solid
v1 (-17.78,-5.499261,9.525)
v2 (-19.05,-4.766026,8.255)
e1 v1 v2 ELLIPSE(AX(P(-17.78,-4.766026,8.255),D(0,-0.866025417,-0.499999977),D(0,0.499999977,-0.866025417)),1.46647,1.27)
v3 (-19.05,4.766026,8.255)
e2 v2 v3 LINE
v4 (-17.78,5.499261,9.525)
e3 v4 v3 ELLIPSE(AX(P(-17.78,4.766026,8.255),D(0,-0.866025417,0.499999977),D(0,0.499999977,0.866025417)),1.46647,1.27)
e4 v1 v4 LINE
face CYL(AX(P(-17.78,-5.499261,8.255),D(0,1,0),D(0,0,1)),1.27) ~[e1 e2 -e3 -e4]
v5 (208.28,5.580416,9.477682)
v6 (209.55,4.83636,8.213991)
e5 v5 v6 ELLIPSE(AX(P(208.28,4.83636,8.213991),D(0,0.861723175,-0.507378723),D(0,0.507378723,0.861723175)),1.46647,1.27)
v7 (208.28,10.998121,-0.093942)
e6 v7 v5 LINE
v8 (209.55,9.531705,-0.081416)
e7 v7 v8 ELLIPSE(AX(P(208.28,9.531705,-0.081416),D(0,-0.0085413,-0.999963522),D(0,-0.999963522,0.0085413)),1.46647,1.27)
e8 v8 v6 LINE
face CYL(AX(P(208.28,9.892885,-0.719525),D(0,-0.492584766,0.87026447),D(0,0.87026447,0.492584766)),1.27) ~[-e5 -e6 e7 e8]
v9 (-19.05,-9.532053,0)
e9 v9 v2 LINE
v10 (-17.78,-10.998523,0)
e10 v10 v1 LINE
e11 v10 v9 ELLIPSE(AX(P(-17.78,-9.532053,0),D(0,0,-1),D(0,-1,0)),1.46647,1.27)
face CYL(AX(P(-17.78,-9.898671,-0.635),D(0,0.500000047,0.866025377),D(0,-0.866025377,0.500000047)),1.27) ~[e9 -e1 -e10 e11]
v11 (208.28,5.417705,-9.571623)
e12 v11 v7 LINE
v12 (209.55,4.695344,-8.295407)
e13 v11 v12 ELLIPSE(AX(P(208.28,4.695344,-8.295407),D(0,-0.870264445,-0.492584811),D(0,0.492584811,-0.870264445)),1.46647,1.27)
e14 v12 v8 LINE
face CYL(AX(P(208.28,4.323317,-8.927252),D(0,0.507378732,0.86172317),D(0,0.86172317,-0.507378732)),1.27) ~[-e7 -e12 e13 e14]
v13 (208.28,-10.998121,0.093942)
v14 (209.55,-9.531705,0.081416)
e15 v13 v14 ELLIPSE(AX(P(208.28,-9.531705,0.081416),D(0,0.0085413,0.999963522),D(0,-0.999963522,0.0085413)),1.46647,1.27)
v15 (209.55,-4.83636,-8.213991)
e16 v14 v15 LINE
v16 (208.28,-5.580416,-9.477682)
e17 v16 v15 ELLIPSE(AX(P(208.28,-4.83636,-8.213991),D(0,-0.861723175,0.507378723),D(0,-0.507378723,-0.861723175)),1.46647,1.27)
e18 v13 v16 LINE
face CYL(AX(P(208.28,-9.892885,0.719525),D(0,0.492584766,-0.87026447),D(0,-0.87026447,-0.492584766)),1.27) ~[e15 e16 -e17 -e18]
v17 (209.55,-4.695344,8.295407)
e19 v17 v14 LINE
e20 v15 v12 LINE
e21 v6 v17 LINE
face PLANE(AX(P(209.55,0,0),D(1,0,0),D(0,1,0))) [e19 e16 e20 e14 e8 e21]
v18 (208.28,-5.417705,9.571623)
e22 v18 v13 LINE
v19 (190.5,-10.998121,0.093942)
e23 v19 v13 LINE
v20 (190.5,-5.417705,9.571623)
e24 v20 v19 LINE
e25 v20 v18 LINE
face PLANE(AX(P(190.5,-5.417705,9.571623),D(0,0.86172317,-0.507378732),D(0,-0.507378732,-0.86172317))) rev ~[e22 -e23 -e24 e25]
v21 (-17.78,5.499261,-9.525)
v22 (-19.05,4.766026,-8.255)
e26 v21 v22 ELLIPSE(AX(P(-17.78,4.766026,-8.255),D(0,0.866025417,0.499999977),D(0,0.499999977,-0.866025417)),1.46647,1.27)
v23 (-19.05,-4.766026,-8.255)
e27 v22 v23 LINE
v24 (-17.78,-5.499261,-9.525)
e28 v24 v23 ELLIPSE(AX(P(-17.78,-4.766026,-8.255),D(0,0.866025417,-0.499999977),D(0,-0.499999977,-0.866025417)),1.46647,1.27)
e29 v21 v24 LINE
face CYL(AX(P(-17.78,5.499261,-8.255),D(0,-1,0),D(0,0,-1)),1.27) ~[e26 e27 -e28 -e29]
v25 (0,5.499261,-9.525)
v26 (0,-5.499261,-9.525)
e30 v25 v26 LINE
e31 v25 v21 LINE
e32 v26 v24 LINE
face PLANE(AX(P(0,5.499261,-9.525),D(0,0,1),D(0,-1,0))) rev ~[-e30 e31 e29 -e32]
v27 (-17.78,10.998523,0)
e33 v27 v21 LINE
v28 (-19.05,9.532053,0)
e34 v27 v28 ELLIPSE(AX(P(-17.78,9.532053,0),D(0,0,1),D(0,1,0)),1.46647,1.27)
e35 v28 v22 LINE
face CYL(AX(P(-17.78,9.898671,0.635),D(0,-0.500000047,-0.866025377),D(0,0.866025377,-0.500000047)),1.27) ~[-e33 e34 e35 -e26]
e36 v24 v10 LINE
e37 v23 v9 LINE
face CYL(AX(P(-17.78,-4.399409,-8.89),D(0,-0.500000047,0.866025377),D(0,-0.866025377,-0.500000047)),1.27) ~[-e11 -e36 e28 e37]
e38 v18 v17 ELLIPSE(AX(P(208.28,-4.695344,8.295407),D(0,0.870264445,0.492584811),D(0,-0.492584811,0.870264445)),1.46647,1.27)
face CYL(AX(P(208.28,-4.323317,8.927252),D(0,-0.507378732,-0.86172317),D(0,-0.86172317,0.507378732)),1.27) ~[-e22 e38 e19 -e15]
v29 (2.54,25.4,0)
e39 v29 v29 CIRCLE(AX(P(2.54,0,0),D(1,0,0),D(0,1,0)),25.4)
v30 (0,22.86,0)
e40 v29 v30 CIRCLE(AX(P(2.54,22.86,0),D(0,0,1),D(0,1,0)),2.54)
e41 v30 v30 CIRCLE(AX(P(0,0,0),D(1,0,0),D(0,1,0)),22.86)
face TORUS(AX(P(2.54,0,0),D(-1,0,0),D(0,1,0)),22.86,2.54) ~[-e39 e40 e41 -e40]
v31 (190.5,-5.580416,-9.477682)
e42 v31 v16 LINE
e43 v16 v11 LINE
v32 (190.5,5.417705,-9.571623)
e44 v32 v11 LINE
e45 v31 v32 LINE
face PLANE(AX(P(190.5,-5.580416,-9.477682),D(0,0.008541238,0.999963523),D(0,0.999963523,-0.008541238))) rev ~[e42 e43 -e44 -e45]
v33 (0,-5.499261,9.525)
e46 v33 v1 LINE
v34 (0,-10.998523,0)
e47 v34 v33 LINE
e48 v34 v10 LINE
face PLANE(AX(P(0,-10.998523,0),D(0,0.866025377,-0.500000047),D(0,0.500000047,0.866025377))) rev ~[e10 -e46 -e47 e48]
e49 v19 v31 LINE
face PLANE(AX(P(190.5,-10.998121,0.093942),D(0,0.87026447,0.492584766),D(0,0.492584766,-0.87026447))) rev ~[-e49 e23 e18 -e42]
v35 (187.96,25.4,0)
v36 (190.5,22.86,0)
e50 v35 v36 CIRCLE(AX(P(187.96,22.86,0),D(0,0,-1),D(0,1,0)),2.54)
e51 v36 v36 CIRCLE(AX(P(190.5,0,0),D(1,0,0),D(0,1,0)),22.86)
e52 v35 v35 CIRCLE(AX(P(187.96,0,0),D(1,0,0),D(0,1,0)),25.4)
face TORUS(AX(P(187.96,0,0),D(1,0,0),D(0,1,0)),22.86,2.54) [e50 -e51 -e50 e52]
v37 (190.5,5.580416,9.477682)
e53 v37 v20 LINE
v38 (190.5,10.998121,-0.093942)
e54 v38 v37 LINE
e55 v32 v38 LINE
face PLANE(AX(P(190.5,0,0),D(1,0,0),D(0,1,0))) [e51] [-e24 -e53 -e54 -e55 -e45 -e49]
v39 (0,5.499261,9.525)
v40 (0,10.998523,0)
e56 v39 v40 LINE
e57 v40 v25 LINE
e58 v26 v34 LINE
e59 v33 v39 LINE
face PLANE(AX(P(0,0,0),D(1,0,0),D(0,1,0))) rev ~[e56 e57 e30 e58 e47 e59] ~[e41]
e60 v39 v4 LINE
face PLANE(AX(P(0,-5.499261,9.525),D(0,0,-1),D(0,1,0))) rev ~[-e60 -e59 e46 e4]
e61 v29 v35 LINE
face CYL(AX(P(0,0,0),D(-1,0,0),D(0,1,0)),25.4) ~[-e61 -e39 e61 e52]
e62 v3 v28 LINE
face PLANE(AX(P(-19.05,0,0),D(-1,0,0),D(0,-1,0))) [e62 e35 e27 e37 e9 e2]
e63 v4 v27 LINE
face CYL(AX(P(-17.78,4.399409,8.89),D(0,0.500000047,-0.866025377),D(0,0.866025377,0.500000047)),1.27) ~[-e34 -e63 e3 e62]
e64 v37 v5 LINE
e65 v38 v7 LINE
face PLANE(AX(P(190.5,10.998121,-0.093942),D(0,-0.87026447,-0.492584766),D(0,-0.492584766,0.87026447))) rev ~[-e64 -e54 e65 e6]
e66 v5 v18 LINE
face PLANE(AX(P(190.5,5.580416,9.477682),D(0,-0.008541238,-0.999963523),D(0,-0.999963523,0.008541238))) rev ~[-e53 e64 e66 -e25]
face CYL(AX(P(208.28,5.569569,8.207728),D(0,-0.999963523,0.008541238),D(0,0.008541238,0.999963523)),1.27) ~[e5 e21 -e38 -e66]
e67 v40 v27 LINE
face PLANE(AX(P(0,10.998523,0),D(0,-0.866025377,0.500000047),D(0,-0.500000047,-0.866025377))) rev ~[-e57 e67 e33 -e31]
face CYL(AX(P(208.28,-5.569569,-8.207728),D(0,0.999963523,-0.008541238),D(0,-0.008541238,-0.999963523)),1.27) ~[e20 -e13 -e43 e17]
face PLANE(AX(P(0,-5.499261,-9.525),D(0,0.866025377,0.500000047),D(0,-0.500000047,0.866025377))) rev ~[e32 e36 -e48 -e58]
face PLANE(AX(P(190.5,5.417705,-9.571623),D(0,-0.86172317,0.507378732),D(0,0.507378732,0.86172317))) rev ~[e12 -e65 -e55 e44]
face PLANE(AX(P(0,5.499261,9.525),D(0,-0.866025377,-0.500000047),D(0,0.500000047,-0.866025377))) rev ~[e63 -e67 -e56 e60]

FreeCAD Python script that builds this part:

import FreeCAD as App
import Part
import Sketcher
from FreeCAD import Vector
Q = App.Units.Quantity


def edges_at(feature, points):
    """Names of the edges that pass closest to the given points."""
    edges = feature.Shape.Edges
    near = lambda p: min(range(len(edges)), key=lambda i: edges[i].distToShape(Part.Vertex(*p))[0])
    return sorted({f"Edge{near(p) + 1}" for p in points})

doc = App.newDocument("Part")
params = doc.addObject("Spreadsheet::Sheet", "Params")
for row, (alias, value) in enumerate([
    ("sketch1_diameter", "2 in"),
    ("pad1_length", "7.5 in"),
    ("pad2_length", "0.75 in"),
    ("pad3_length", "0.75 in"),
    ("fillet_radius", "0.1 in"),
    ("fillet2_radius", "0.1 in"),
    ("fillet3_radius", "0.05 in"),
    ("fillet4_radius", "0.05 in"),
], start=1):
    params.set(f"A{row}", alias)
    params.set(f"B{row}", "=" + value)
    params.setAlias(f"B{row}", alias)

body = doc.addObject("PartDesign::Body", "Body")

# Sketch on YZ plane
sketch1 = body.newObject("Sketcher::SketchObject", "Sketch")
sketch1.AttachmentSupport = (doc.getObject("YZ_Plane"), [""])
sketch1.MapMode = "FlatFace"
sketch1.addGeometry(Part.Circle(Vector(0, 0, 0), Vector(0, 0, 1), 25), False)
sketch1.addConstraint(Sketcher.Constraint("Coincident", 0, 3, -1, 1))
sketch1.addConstraint(Sketcher.Constraint("Diameter", 0, Q("2 in")))
sketch1.setExpression("Constraints[1]", "Params.sketch1_diameter")
pad1 = body.newObject("PartDesign::Pad", "Pad")
pad1.Profile = sketch1
pad1.setExpression("Length", "Params.pad1_length")

# Sketch on YZ plane
sketch2 = body.newObject("Sketcher::SketchObject", "Sketch001")
sketch2.AttachmentSupport = (doc.getObject("YZ_Plane"), [""])
sketch2.MapMode = "FlatFace"
sketch2.addGeometry(Part.LineSegment(Vector(-5, 10, 0), Vector(5, 10, 0)), False)
sketch2.addGeometry(Part.LineSegment(Vector(5, 10, 0), Vector(11, 0, 0)), False)
sketch2.addGeometry(Part.LineSegment(Vector(11, 0, 0), Vector(5, -10, 0)), False)
sketch2.addGeometry(Part.LineSegment(Vector(5, -10, 0), Vector(-5, -10, 0)), False)
sketch2.addGeometry(Part.LineSegment(Vector(-5, -10, 0), Vector(-11, 0, 0)), False)
sketch2.addGeometry(Part.LineSegment(Vector(-11, 0, 0), Vector(-5, 10, 0)), False)
sketch2.addConstraint(Sketcher.Constraint("Coincident", 0, 2, 1, 1))
sketch2.addConstraint(Sketcher.Constraint("Coincident", 1, 2, 2, 1))
sketch2.addConstraint(Sketcher.Constraint("Coincident", 2, 2, 3, 1))
sketch2.addConstraint(Sketcher.Constraint("Coincident", 3, 2, 4, 1))
sketch2.addConstraint(Sketcher.Constraint("Coincident", 4, 2, 5, 1))
sketch2.addConstraint(Sketcher.Constraint("Coincident", 5, 2, 0, 1))
sketch2.addConstraint(Sketcher.Constraint("Horizontal", 0))
sketch2.addConstraint(Sketcher.Constraint("Horizontal", 3))
sketch2.addConstraint(Sketcher.Constraint("Symmetric", 0, 2, 3, 2, -1, 1))
sketch2.addConstraint(Sketcher.Constraint("Symmetric", 1, 2, 4, 2, -1, 1))
sketch2.addConstraint(Sketcher.Constraint("PointOnObject", 1, 2, -1))
sketch2.addConstraint(Sketcher.Constraint("Parallel", 2, 5))
sketch2.addConstraint(Sketcher.Constraint("Vertical", 0, 2, 2, 2))
sketch2.addConstraint(Sketcher.Constraint("Angle", 1, Q("-59.999997 deg")))
sketch2.addConstraint(Sketcher.Constraint("DistanceY", 2, 2, 0, 2, Q("0.75 in")))
sketch2.addConstraint(Sketcher.Constraint("DistanceX", 0, 1, 0, 2, 10.998522))
pad2 = body.newObject("PartDesign::Pad", "Pad001")
pad2.Profile = sketch2
pad2.setExpression("Length", "Params.pad2_length")
pad2.Reversed = True

# Sketch on YZ plane
sketch3 = body.newObject("Sketcher::SketchObject", "Sketch002")
sketch3.AttachmentSupport = (doc.getObject("YZ_Plane"), [""])
sketch3.MapMode = "FlatFace"
sketch3.AttachmentOffset = App.Placement(Vector(0, 0, 7.5 * 25.4), App.Rotation())
sketch3.addGeometry(Part.LineSegment(Vector(11, 0, 0), Vector(6, 9, 0)), False)
sketch3.addGeometry(Part.LineSegment(Vector(6, 9, 0), Vector(-5, 10, 0)), False)
sketch3.addGeometry(Part.LineSegment(Vector(-5, 10, 0), Vector(-11, 0, 0)), False)
sketch3.addGeometry(Part.LineSegment(Vector(-11, 0, 0), Vector(-6, -9, 0)), False)
sketch3.addGeometry(Part.LineSegment(Vector(-6, -9, 0), Vector(5, -10, 0)), False)
sketch3.addGeometry(Part.LineSegment(Vector(5, -10, 0), Vector(11, 0, 0)), False)
sketch3.addConstraint(Sketcher.Constraint("Coincident", 0, 2, 1, 1))
sketch3.addConstraint(Sketcher.Constraint("Coincident", 1, 2, 2, 1))
sketch3.addConstraint(Sketcher.Constraint("Coincident", 2, 2, 3, 1))
sketch3.addConstraint(Sketcher.Constraint("Coincident", 3, 2, 4, 1))
sketch3.addConstraint(Sketcher.Constraint("Coincident", 4, 2, 5, 1))
sketch3.addConstraint(Sketcher.Constraint("Coincident", 5, 2, 0, 1))
sketch3.addConstraint(Sketcher.Constraint("Symmetric", 0, 2, 3, 2, -1, 1))
sketch3.addConstraint(Sketcher.Constraint("Symmetric", 1, 2, 4, 2, -1, 1))
sketch3.addConstraint(Sketcher.Constraint("Symmetric", 2, 2, 5, 2, -1, 1))
sketch3.addConstraint(Sketcher.Constraint("Equal", 0, 1))
sketch3.addConstraint(Sketcher.Constraint("Equal", 1, 2))
sketch3.addConstraint(Sketcher.Constraint("Distance", 2, 10.998522))
sketch3.addConstraint(Sketcher.Constraint("DistanceX", 2, 2, -1, 1, 10.998121))
sketch3.addConstraint(Sketcher.Constraint("DistanceX", 1, 2, 0, 2, 10.998121))
sketch3.addConstraint(Sketcher.Constraint("DistanceY", 2, 2, 1, 2, 9.477681))
pad3 = body.newObject("PartDesign::Pad", "Pad002")
pad3.Profile = sketch3
pad3.setExpression("Length", "Params.pad3_length")
doc.recompute()

fillet = body.newObject("PartDesign::Fillet", "Fillet")
fillet.Base = (pad3, edges_at(pad3, [(190.5, -25.4, 0)]))
fillet.setExpression("Radius", "Params.fillet_radius")
doc.recompute()

fillet2 = body.newObject("PartDesign::Fillet", "Fillet001")
fillet2.Base = (fillet, edges_at(fillet, [(0, -25.4, 0)]))
fillet2.setExpression("Radius", "Params.fillet2_radius")
doc.recompute()

fillet3 = body.newObject("PartDesign::Fillet", "Fillet002")
fillet3.Base = (fillet2, edges_at(fillet2, [
    (209.55, 8.289, 4.692),
    (209.55, 0.081, 9.525),
    (209.55, -8.208, 4.833),
    (209.55, -8.289, -4.692),
    (209.55, -0.081, -9.525),
    (209.55, 8.208, -4.833),
]))
fillet3.setExpression("Radius", "Params.fillet3_radius")
doc.recompute()

fillet4 = body.newObject("PartDesign::Fillet", "Fillet003")
fillet4.Base = (fillet3, edges_at(fillet3, [
    (-19.05, 0, 9.525),
    (-19.05, 8.249, 4.763),
    (-19.05, 8.249, -4.763),
    (-19.05, 0, -9.525),
    (-19.05, -8.249, -4.763),
    (-19.05, -8.249, 4.763),
]))
fillet4.setExpression("Radius", "Params.fillet4_radius")

doc.recompute()
